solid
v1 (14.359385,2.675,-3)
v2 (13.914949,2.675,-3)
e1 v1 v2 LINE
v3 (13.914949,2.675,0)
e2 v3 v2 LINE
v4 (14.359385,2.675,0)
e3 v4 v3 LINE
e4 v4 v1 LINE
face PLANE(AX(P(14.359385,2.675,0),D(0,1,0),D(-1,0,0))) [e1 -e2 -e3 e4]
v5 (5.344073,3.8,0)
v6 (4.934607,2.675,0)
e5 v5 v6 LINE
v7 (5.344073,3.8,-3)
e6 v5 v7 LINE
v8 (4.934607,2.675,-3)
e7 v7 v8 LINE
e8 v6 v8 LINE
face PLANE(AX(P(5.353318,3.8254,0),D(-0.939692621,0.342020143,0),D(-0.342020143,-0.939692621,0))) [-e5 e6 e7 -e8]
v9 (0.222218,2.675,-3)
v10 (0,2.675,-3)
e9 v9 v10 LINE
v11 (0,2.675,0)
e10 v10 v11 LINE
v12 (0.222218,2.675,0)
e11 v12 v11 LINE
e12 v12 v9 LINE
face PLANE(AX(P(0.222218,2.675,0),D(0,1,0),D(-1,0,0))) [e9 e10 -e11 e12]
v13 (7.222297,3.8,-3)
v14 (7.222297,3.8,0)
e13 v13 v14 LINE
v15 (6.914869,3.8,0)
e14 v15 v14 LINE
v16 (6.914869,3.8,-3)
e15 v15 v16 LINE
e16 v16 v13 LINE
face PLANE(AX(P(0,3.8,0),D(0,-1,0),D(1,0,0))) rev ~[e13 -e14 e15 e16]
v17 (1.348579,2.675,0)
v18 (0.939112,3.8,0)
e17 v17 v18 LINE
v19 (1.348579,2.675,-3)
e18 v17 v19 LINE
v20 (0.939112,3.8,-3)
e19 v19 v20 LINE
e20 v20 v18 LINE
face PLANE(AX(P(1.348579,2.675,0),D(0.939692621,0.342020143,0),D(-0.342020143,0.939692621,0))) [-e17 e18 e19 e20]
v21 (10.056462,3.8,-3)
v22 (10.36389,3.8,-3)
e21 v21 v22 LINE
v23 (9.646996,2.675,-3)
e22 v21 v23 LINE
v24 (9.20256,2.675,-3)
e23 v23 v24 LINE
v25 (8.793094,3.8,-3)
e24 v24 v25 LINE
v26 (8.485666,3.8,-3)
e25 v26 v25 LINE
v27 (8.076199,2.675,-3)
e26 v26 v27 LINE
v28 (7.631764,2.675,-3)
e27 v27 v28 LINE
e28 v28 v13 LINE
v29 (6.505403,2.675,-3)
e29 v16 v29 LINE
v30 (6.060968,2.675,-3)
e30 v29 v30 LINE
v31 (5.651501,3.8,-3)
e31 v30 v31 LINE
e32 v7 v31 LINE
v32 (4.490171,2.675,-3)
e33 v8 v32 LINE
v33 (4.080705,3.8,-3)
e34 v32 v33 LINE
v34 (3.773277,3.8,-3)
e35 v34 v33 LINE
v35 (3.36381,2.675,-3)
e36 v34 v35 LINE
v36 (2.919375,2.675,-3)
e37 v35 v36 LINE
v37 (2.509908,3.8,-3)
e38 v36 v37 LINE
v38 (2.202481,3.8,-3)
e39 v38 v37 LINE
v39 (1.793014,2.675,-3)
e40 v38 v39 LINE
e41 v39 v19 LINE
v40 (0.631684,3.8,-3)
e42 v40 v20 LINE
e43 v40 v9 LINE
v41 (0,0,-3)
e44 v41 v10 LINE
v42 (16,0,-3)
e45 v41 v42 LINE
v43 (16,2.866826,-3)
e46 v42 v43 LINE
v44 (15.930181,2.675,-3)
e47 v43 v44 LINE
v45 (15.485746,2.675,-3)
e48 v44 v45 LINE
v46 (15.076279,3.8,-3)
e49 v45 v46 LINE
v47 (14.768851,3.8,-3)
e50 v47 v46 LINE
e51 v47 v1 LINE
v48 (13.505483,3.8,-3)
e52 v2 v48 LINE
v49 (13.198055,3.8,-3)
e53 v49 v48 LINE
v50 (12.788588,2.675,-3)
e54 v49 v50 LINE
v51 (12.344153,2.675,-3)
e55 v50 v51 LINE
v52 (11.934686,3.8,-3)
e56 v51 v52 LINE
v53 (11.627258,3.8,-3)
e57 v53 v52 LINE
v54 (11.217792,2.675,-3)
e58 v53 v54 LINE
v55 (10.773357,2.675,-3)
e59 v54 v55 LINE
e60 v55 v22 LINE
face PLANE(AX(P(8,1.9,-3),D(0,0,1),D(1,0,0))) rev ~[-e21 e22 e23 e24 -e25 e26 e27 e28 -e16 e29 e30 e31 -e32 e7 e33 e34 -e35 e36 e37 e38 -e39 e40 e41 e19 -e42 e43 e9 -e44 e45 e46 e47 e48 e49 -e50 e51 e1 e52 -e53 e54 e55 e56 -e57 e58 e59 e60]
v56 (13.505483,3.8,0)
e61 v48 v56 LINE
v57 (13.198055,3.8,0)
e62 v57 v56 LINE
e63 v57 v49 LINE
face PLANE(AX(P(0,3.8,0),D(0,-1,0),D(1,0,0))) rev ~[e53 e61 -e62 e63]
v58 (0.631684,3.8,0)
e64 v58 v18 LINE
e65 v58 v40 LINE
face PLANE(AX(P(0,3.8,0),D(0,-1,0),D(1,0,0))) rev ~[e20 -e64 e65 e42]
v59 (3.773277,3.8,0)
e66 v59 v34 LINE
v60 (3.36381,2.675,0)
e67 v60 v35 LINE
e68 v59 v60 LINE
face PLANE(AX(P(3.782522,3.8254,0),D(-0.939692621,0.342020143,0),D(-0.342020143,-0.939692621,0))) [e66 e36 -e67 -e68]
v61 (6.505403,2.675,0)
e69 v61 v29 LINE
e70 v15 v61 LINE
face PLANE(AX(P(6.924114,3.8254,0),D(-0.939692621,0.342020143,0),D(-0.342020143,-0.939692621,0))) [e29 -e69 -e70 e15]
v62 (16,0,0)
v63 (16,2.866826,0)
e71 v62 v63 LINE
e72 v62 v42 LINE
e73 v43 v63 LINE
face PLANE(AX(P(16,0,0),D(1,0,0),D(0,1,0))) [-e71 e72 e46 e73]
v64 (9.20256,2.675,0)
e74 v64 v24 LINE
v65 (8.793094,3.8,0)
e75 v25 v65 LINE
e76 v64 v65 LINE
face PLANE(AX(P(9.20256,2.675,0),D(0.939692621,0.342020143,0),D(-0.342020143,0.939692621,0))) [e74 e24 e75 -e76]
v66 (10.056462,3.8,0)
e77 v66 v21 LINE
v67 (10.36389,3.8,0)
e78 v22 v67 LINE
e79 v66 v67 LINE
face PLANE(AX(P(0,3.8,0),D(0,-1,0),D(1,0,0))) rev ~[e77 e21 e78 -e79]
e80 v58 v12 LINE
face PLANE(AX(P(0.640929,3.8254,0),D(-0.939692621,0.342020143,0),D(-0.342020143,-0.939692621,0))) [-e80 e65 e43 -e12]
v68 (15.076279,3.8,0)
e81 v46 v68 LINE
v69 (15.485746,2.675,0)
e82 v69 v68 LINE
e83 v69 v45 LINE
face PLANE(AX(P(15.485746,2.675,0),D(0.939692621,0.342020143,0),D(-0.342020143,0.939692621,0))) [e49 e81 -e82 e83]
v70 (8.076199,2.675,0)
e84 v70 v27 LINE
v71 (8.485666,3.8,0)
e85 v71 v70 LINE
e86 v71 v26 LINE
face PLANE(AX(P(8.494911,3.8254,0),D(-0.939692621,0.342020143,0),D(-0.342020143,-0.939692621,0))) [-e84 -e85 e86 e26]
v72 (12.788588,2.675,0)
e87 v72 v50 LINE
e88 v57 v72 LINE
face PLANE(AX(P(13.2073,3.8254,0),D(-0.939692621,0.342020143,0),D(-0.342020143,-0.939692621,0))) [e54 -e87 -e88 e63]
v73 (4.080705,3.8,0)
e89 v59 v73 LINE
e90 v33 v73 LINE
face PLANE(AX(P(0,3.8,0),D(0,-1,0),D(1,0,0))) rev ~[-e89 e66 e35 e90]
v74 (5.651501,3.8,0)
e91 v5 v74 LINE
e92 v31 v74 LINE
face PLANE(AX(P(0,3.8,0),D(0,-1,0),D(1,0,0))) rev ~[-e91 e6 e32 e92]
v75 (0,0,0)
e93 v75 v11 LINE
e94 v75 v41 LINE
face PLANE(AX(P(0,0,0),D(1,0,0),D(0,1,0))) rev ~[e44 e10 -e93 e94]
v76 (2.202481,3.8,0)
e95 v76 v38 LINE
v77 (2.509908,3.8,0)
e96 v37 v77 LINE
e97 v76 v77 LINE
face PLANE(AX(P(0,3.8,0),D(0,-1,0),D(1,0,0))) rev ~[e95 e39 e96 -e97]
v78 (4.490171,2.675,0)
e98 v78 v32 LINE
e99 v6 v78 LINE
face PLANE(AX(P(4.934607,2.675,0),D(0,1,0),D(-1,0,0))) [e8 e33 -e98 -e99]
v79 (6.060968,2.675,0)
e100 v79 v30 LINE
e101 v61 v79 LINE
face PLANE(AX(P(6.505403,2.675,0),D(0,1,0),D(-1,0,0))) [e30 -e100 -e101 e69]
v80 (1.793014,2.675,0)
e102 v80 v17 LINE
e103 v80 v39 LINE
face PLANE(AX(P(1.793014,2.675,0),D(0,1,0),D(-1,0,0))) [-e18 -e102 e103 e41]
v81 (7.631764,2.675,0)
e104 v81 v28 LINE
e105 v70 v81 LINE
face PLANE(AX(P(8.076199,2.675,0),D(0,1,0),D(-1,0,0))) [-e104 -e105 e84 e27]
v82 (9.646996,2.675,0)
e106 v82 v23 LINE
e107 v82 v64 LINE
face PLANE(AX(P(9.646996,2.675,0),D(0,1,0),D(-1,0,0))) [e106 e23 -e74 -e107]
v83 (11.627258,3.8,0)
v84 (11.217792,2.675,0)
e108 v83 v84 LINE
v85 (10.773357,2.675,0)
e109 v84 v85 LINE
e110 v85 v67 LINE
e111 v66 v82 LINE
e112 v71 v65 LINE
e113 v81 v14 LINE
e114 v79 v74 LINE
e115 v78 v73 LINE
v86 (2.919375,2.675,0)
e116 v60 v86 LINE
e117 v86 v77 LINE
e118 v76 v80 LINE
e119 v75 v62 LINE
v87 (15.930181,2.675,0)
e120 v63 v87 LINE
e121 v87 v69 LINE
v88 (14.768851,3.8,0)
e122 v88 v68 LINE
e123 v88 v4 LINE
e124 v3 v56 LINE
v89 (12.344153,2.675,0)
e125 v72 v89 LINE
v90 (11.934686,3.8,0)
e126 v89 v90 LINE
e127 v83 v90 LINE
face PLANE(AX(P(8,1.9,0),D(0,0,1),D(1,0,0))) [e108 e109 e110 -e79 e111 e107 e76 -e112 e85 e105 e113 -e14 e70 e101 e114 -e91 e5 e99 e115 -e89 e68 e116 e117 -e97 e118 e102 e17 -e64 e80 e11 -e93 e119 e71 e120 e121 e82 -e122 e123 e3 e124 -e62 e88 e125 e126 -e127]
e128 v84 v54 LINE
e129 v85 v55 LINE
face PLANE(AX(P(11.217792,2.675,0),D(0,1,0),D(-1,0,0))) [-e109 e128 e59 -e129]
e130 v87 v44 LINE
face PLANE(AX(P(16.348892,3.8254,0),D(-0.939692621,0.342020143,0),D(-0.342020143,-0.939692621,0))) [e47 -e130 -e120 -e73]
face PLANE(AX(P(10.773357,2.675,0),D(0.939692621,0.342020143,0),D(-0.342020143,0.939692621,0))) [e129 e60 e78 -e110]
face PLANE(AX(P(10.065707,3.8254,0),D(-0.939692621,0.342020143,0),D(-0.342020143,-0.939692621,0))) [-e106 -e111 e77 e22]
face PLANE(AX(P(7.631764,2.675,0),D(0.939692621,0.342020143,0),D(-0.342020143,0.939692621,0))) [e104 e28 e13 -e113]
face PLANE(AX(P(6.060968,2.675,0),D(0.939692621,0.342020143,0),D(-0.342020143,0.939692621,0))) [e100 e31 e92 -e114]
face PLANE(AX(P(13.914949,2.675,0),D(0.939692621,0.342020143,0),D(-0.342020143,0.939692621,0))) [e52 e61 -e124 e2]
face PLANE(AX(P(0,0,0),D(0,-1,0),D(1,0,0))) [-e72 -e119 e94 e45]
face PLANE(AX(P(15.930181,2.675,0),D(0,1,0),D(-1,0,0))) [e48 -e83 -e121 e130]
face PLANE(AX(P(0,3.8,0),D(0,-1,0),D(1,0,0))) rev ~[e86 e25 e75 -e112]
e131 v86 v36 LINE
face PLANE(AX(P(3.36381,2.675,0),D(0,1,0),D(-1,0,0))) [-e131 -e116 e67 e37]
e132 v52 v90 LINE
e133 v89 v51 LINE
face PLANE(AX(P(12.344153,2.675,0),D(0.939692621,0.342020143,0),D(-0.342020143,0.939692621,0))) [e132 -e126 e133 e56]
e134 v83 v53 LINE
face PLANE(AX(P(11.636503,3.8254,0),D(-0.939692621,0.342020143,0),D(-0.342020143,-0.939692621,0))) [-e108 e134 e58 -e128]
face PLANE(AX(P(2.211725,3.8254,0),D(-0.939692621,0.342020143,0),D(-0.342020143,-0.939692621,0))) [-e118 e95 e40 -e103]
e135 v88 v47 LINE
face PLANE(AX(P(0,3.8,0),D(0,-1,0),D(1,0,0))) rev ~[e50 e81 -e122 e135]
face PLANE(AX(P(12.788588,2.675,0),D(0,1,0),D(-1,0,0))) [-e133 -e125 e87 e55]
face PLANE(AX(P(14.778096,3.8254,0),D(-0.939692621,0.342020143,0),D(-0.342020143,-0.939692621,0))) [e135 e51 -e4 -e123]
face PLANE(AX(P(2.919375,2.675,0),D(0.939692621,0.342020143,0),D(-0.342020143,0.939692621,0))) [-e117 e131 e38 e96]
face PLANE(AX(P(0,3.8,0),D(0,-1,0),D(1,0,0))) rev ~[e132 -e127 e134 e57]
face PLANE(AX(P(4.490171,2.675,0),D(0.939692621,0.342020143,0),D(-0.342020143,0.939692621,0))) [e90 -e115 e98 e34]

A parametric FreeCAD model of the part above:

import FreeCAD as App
import Part
import Sketcher
Q = App.Units.Quantity


def add_polygon(sketch, points):
    """Adds a closed chain of lines whose ends are joined by coincident constraints."""
    first, n = sketch.GeometryCount, len(points)
    for a, b in zip(points, points[1:] + points[:1]):
        sketch.addGeometry(Part.LineSegment(App.Vector(*a, 0), App.Vector(*b, 0)), False)
    for i in range(n):
        sketch.addConstraint(Sketcher.Constraint("Coincident", first + i, 2, first + (i + 1) % n, 1))

doc = App.newDocument("Part")
body = doc.addObject("PartDesign::Body", "Body")

# Sketch on XY plane
sketch1 = body.newObject("Sketcher::SketchObject", "Sketch")
sketch1.AttachmentSupport = (doc.getObject("XY_Plane"), [""])
sketch1.MapMode = "FlatFace"
add_polygon(sketch1, [(0, 3.8), (0, 0), (16, 0), (16, 3.8)])  # lines 0-3
sketch1.addConstraint([
    Sketcher.Constraint("Vertical", 0),
    Sketcher.Constraint("Horizontal", 1),
    Sketcher.Constraint("Vertical", 2),
    Sketcher.Constraint("Horizontal", 3),
    Sketcher.Constraint("Coincident", 0, 2, -1, 1),
    Sketcher.Constraint("DistanceX", 1, 1, 1, 2, Q("16 mm")),
    Sketcher.Constraint("DistanceY", 0, 2, 0, 1, Q("3.8 mm")),
])
pad1 = body.newObject("PartDesign::Pad", "Pad")
pad1.Profile = sketch1
pad1.Length = 3
pad1.Reversed = True

# Sketch on XY plane
sketch2 = body.newObject("Sketcher::SketchObject", "Sketch001")
sketch2.AttachmentSupport = (doc.getObject("XY_Plane"), [""])
sketch2.MapMode = "FlatFace"
add_polygon(sketch2, [(-0.222218, 2.675), (0.222218, 2.675), (0.640929, 3.8254), (-0.640929, 3.8254)])  # lines 0-3
sketch2.addConstraint([
    Sketcher.Constraint("Horizontal", 0),
    Sketcher.Constraint("Horizontal", 2),
    Sketcher.Constraint("Equal", 1, 3),
    Sketcher.Constraint("Angle", 1, Q("70 deg")),
    Sketcher.Constraint("DistanceY", -1, 1, 0, 2, Q("2.675 mm")),
    Sketcher.Constraint("DistanceX", 2, 2, 2, 1, Q("1.281858 mm")),
    Sketcher.Constraint("DistanceY", -1, 1, 1, 2, Q("3.8254 mm")),
    Sketcher.Constraint("DistanceX", -1, 1, 1, 2, Q("0.640929 mm")),
])
pocket1 = body.newObject("PartDesign::Pocket", "Pocket")
pocket1.Profile = sketch2
pocket1.Type = "ThroughAll"
doc.recompute()

linearpattern = body.newObject("PartDesign::LinearPattern", "LinearPattern")
linearpattern.Originals = [pocket1]
linearpattern.Direction = (doc.getObject("X_Axis"), [""])
linearpattern.Mode = "offset"
linearpattern.Offset = 1.570796
linearpattern.Occurrences = 11
body.Tip = linearpattern

doc.recompute()
